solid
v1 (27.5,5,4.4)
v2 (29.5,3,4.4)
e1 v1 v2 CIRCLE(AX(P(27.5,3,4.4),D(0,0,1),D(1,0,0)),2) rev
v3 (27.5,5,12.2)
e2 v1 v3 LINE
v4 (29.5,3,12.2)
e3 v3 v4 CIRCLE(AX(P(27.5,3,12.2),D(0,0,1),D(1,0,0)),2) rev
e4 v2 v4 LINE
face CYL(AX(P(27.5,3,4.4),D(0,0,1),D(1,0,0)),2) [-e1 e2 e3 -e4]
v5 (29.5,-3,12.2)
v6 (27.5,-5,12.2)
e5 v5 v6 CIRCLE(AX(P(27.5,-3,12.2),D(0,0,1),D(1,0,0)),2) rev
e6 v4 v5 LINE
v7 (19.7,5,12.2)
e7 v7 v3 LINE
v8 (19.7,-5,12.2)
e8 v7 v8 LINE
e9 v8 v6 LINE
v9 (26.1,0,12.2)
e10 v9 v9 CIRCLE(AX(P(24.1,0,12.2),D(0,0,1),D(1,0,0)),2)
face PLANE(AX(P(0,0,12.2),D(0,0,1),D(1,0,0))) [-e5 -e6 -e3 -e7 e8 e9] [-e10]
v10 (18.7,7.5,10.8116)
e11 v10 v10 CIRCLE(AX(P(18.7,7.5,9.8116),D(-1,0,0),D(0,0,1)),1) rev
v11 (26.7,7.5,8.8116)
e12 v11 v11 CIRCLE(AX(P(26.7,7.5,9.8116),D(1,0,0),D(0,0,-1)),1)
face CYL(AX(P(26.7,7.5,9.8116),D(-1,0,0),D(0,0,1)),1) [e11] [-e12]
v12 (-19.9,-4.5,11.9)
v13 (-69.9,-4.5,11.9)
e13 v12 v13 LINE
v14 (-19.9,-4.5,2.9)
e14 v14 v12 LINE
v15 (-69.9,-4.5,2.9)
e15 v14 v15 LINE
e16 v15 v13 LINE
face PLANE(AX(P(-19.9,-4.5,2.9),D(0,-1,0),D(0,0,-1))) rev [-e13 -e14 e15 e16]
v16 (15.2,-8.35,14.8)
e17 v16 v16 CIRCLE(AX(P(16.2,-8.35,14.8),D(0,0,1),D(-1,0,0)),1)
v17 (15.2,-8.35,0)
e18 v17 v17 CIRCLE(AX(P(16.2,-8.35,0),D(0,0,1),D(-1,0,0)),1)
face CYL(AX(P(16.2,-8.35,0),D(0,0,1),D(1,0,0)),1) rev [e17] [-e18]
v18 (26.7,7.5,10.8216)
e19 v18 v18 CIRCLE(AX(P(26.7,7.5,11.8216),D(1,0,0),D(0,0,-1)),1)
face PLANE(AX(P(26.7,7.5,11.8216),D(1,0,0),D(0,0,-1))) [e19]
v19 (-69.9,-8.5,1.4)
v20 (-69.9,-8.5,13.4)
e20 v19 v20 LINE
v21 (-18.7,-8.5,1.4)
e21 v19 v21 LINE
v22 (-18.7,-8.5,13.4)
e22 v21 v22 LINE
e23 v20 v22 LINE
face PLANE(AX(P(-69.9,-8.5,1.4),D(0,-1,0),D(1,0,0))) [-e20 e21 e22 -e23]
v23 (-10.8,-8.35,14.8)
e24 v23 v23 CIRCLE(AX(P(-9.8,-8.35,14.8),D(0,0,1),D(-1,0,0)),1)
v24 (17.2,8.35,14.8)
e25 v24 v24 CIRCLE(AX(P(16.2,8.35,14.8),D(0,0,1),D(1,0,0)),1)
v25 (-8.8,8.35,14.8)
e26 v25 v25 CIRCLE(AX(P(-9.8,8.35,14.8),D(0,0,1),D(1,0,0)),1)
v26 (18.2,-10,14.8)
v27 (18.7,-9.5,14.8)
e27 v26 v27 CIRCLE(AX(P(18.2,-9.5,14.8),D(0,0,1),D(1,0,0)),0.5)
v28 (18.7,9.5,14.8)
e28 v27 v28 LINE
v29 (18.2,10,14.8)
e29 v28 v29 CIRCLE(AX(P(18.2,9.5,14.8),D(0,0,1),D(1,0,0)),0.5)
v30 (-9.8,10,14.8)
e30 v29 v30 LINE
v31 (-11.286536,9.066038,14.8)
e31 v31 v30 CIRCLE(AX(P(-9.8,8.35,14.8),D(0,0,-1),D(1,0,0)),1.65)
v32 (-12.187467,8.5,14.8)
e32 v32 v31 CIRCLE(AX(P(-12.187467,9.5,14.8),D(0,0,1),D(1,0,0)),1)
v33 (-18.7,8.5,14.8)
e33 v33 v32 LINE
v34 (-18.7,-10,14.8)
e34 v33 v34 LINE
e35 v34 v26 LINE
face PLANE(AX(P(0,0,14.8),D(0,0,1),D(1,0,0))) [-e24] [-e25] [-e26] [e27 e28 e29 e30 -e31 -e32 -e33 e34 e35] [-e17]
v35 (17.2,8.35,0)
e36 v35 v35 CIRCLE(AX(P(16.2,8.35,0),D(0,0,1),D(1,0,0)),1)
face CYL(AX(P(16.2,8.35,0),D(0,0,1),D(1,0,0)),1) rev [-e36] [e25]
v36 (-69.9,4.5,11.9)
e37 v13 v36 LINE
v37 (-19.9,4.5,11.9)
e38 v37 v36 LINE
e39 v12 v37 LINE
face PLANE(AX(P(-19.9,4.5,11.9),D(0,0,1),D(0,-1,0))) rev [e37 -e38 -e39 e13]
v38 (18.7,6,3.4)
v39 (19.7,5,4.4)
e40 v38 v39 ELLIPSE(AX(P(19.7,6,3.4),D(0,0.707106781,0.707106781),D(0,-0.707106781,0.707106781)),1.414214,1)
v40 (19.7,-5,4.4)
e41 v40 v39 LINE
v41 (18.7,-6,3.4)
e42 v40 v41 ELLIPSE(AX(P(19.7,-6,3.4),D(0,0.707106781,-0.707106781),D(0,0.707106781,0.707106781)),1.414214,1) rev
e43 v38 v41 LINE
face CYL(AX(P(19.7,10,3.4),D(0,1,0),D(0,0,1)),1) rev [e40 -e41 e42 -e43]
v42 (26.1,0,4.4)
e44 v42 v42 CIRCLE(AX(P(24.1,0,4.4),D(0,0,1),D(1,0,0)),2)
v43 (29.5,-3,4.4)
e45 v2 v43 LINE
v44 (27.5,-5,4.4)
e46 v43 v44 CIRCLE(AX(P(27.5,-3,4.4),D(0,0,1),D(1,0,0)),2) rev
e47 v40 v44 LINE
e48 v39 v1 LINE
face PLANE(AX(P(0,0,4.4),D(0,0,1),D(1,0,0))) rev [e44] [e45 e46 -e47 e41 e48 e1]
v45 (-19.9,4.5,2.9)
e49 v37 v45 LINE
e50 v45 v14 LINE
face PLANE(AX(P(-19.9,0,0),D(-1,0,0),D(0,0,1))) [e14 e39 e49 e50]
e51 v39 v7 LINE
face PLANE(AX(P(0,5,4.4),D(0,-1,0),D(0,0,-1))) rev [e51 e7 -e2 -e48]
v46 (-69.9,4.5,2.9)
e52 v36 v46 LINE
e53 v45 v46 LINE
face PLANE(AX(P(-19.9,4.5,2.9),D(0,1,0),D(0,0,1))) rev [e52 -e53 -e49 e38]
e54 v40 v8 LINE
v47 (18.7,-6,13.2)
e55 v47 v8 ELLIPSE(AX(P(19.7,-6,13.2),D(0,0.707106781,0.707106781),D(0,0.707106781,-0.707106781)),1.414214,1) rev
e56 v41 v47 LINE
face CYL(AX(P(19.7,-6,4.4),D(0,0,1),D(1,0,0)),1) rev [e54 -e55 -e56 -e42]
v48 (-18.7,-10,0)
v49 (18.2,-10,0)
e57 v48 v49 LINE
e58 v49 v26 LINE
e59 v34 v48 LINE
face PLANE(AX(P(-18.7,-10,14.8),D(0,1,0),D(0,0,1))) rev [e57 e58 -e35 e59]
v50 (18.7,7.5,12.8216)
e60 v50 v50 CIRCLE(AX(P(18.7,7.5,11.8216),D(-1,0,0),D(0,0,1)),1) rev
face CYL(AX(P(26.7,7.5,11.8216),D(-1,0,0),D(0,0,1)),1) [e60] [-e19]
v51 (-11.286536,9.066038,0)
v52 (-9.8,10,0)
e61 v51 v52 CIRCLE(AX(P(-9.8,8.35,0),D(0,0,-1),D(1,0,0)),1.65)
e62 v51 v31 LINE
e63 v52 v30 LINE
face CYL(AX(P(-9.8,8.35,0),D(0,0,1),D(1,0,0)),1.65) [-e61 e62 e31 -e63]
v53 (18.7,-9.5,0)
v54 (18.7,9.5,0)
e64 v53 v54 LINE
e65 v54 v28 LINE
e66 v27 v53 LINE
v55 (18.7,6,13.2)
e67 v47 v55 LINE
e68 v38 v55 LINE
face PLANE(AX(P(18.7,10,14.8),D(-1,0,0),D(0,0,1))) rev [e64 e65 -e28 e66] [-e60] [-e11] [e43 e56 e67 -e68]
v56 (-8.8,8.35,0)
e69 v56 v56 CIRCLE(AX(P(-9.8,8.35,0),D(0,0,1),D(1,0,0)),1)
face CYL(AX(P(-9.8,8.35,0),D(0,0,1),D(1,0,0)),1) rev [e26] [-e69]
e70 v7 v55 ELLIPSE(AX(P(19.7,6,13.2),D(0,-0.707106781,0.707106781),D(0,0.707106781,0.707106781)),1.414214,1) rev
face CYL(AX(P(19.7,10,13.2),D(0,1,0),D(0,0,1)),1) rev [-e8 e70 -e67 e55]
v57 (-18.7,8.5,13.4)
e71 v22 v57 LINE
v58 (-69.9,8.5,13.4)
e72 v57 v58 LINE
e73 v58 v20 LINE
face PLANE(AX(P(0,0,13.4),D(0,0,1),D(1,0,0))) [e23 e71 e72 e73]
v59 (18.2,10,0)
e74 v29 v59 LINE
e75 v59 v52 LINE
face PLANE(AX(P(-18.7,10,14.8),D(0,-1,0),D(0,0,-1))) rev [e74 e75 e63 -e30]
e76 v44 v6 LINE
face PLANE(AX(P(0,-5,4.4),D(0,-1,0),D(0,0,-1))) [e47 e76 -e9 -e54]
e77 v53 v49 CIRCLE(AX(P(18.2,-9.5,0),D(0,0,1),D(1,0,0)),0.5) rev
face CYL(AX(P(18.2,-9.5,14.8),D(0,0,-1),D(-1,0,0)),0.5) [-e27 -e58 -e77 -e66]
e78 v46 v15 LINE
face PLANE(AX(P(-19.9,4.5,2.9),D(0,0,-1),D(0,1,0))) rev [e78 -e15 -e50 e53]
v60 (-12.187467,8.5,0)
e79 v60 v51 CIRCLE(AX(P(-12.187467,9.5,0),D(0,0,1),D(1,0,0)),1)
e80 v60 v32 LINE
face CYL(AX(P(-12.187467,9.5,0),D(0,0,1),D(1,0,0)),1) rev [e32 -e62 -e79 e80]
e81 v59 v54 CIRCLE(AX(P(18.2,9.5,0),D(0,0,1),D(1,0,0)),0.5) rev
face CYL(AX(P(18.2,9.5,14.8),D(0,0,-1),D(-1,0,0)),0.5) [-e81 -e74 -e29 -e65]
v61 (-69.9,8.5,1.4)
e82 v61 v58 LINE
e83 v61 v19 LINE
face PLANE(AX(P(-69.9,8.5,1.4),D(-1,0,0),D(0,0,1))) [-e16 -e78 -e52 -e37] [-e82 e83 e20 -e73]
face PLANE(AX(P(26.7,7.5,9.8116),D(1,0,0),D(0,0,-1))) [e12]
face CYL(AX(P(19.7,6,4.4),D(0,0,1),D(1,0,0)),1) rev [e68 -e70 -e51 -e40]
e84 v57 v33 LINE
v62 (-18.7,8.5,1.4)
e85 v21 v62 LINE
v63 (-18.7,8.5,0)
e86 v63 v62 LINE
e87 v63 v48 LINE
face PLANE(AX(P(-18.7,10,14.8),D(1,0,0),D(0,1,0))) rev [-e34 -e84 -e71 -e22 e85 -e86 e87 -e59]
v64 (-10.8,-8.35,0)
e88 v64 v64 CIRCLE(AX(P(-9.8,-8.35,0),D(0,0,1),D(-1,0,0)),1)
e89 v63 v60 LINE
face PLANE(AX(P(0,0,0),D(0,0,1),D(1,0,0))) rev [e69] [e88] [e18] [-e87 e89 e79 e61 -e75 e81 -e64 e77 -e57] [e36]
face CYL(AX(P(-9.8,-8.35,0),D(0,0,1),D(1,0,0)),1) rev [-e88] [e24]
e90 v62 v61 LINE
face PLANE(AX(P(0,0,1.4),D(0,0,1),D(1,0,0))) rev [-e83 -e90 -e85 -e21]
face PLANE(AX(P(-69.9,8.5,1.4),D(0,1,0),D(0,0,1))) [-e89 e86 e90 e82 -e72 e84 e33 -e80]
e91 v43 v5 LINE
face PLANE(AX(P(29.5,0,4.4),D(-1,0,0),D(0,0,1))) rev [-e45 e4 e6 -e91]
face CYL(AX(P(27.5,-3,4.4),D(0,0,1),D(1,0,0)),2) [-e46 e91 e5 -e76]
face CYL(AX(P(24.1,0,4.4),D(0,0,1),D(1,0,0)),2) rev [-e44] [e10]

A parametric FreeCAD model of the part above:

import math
import FreeCAD as App
import Part
import Sketcher

V = App.Vector
Q = App.Units.Quantity


def edges_at(feature, points):
    """Names of the edges that pass closest to the given points."""
    edges = feature.Shape.Edges
    near = lambda p: min(range(len(edges)), key=lambda i: edges[i].distToShape(Part.Vertex(*p))[0])
    return sorted({f"Edge{near(p) + 1}" for p in points})


def add_polygon(sketch, points):
    """Adds a closed chain of lines whose ends are joined by coincident constraints."""
    first, n = sketch.GeometryCount, len(points)
    for a, b in zip(points, points[1:] + points[:1]):
        sketch.addGeometry(Part.LineSegment(App.Vector(*a, 0), App.Vector(*b, 0)), False)
    for i in range(n):
        sketch.addConstraint(Sketcher.Constraint("Coincident", first + i, 2, first + (i + 1) % n, 1))

doc = App.newDocument("Part")
body = doc.addObject("PartDesign::Body", "Body")

# Sketch on XY plane
sketch1 = body.newObject("Sketcher::SketchObject", "Sketch")
sketch1.AttachmentSupport = (doc.getObject("XY_Plane"), [""])
sketch1.MapMode = "FlatFace"
add_polygon(sketch1, [(18.7, 10), (-18.7, 10), (-18.7, -10), (18.7, -10)])  # lines 0-3
sketch1.addConstraint([
    Sketcher.Constraint("Horizontal", 0),
    Sketcher.Constraint("Vertical", 1),
    Sketcher.Constraint("Horizontal", 2),
    Sketcher.Constraint("Vertical", 3),
    Sketcher.Constraint("Symmetric", 0, 2, 2, 2, -1, 1),
    Sketcher.Constraint("DistanceY", 1, 2, 1, 1, Q("20 mm")),
    Sketcher.Constraint("DistanceX", 0, 2, 0, 1, Q("37.4 mm")),
])
pad1 = body.newObject("PartDesign::Pad", "Pad")
pad1.Profile = sketch1
pad1.Length = 14.8

# Sketch on XY plane
sketch2 = body.newObject("Sketcher::SketchObject", "Sketch001")
sketch2.AttachmentSupport = (doc.getObject("XY_Plane"), [""])
sketch2.MapMode = "FlatFace"
sketch2.AttachmentOffset = App.Placement(V(0, 0, 12.2), App.Rotation())
sketch2.addGeometry([
    Part.LineSegment(V(29.5, -3, 0), V(29.5, 3, 0)),  # 0
    Part.ArcOfCircle(Part.Circle(V(27.5, 3, 0), V(0, 0, 1), 2), math.radians(0), math.radians(90)),  # 1
    Part.LineSegment(V(27.5, 5, 0), V(19.7, 5, 0)),  # 2
    Part.ArcOfCircle(Part.Circle(V(19.7, 6, 0), V(0, 0, 1), 1), math.radians(180), math.radians(270)),  # 3
    Part.LineSegment(V(18.7, 6, 0), V(18.7, -6, 0)),  # 4
    Part.ArcOfCircle(Part.Circle(V(19.7, -6, 0), V(0, 0, 1), 1), math.radians(90), math.radians(180)),  # 5
    Part.LineSegment(V(19.7, -5, 0), V(27.5, -5, 0)),  # 6
    Part.ArcOfCircle(Part.Circle(V(27.5, -3, 0), V(0, 0, 1), 2), math.radians(-90), math.radians(0)),  # 7
    Part.Circle(V(24.1, 0, 0), V(0, 0, 1), 2),  # 8
], False)
sketch2.addConstraint([
    Sketcher.Constraint("Tangent", 0, 2, 1, 1),
    Sketcher.Constraint("Tangent", 1, 2, 2, 1),
    Sketcher.Constraint("Tangent", 2, 2, 3, 2),
    Sketcher.Constraint("Tangent", 3, 1, 4, 1),
    Sketcher.Constraint("Tangent", 4, 2, 5, 2),
    Sketcher.Constraint("Tangent", 5, 1, 6, 1),
    Sketcher.Constraint("Tangent", 6, 2, 7, 1),
    Sketcher.Constraint("Tangent", 7, 2, 0, 1),
    Sketcher.Constraint("Vertical", 0),
    Sketcher.Constraint("Horizontal", 2),
    Sketcher.Constraint("Vertical", 4),
    Sketcher.Constraint("Horizontal", 6),
    Sketcher.Constraint("Equal", 3, 5),
    Sketcher.Constraint("Equal", 1, 7),
    Sketcher.Constraint("Equal", 7, 8),
    Sketcher.Constraint("PointOnObject", 8, 3, -1),
    Sketcher.Constraint("Diameter", 8, Q("4 mm")),
    Sketcher.Constraint("Radius", 3, Q("1 mm")),
    Sketcher.Constraint("DistanceY", 0, 1, 0, 2, Q("6 mm")),
    Sketcher.Constraint("DistanceX", 2, 2, 2, 1, Q("7.8 mm")),
    Sketcher.Constraint("DistanceY", -1, 1, 1, 3, Q("3 mm")),
    Sketcher.Constraint("DistanceX", -1, 1, 1, 3, Q("27.5 mm")),
    Sketcher.Constraint("DistanceX", -1, 1, 8, 3, Q("24.1 mm")),
])
pad2 = body.newObject("PartDesign::Pad", "Pad001")
pad2.Profile = sketch2
pad2.Length = 7.8
pad2.Reversed = True

# Sketch on XY plane
sketch3 = body.newObject("Sketcher::SketchObject", "Sketch002")
sketch3.AttachmentSupport = (doc.getObject("XY_Plane"), [""])
sketch3.MapMode = "FlatFace"
sketch3.AttachmentOffset = App.Placement(V(0, 0, 13.4), App.Rotation())
add_polygon(sketch3, [(-18.7, 8.5), (-69.9, 8.5), (-69.9, -8.5), (-18.7, -8.5)])  # lines 0-3
sketch3.addConstraint([
    Sketcher.Constraint("Horizontal", 0),
    Sketcher.Constraint("Vertical", 1),
    Sketcher.Constraint("Horizontal", 2),
    Sketcher.Constraint("Vertical", 3),
    Sketcher.Constraint("DistanceY", 1, 2, 1, 1, Q("17 mm")),
    Sketcher.Constraint("DistanceX", 0, 2, 0, 1, Q("51.2 mm")),
    Sketcher.Constraint("DistanceX", 0, 2, -1, 1, Q("69.9 mm")),
    Sketcher.Constraint("DistanceY", -1, 1, 0, 2, Q("8.5 mm")),
])
pad3 = body.newObject("PartDesign::Pad", "Pad002")
pad3.Profile = sketch3
pad3.Length = 12
pad3.Reversed = True

# Sketch on YZ plane
sketch4 = body.newObject("Sketcher::SketchObject", "Sketch003")
sketch4.AttachmentSupport = (doc.getObject("YZ_Plane"), [""])
sketch4.MapMode = "FlatFace"
sketch4.AttachmentOffset = App.Placement(V(0, 0, -69.9), App.Rotation())
add_polygon(sketch4, [(4.5, 11.9), (4.5, 2.9), (-4.5, 2.9), (-4.5, 11.9)])  # lines 0-3
sketch4.addConstraint([
    Sketcher.Constraint("Vertical", 0),
    Sketcher.Constraint("Horizontal", 1),
    Sketcher.Constraint("Vertical", 2),
    Sketcher.Constraint("Horizontal", 3),
    Sketcher.Constraint("Equal", 3, 0),
    Sketcher.Constraint("DistanceX", 1, 2, 1, 1, Q("9 mm")),
    Sketcher.Constraint("DistanceX", -1, 1, 0, 2, Q("4.5 mm")),
    Sketcher.Constraint("DistanceY", -1, 1, 0, 2, Q("2.9 mm")),
])
pocket1 = body.newObject("PartDesign::Pocket", "Pocket")
pocket1.Profile = sketch4
pocket1.Length = 50
pocket1.Reversed = True
doc.recompute()

fillet = body.newObject("PartDesign::Fillet", "Fillet")
fillet.Base = (pocket1, edges_at(pocket1, [(18.7, 0, 4.4)]))
fillet.Radius = 1
doc.recompute()

fillet2 = body.newObject("PartDesign::Fillet", "Fillet001")
fillet2.Base = (fillet, edges_at(fillet, [(18.7, 0, 12.2)]))
fillet2.Radius = 1

# Sketch on XY plane
sketch5 = body.newObject("Sketcher::SketchObject", "Sketch004")
sketch5.AttachmentSupport = (doc.getObject("XY_Plane"), [""])
sketch5.MapMode = "FlatFace"
sketch5.AttachmentOffset = App.Placement(V(0, 0, 14.8), App.Rotation())
sketch5.addGeometry([
    Part.Circle(V(16.2, 8.35, 0), V(0, 0, 1), 1),  # 0
    Part.Circle(V(-9.8, 8.35, 0), V(0, 0, 1), 1),  # 1
    Part.Circle(V(-9.8, -8.35, 0), V(0, 0, 1), 1),  # 2
    Part.Circle(V(16.2, -8.35, 0), V(0, 0, 1), 1),  # 3
    Part.LineSegment(V(-18.7, 8.5, 0), V(-12.187467, 8.5, 0)),  # 4
    Part.ArcOfCircle(Part.Circle(V(-12.187467, 9.5, 0), V(0, 0, 1), 1), math.radians(-90), math.radians(-25.719279)),  # 5
    Part.ArcOfCircle(Part.Circle(V(-9.8, 8.35, 0), V(0, 0, 1), 1.65), math.radians(90), math.radians(154.28072)),  # 6
    Part.LineSegment(V(-9.8, 10, 0), V(-18.7, 10, 0)),  # 7
    Part.LineSegment(V(-18.7, 10, 0), V(-18.7, 8.5, 0)),  # 8
], False)
sketch5.addConstraint([
    Sketcher.Constraint("Tangent", 4, 2, 5, 1),
    Sketcher.Constraint("Tangent", 5, 2, 6, 2),
    Sketcher.Constraint("Tangent", 6, 1, 7, 1),
    Sketcher.Constraint("Coincident", 7, 2, 8, 1),
    Sketcher.Constraint("Coincident", 8, 2, 4, 1),
    Sketcher.Constraint("Horizontal", 4),
    Sketcher.Constraint("Horizontal", 7),
    Sketcher.Constraint("Vertical", 8),
    Sketcher.Constraint("Coincident", 6, 3, 1, 3),
    Sketcher.Constraint("Equal", 0, 1),
    Sketcher.Constraint("Equal", 1, 2),
    Sketcher.Constraint("Equal", 2, 3),
    Sketcher.Constraint("Equal", 3, 5),
    Sketcher.Constraint("Symmetric", 1, 3, 2, 3, -1),
    Sketcher.Constraint("Symmetric", 0, 3, 3, 3, -1),
    Sketcher.Constraint("Horizontal", 0, 3, 1, 3),
    Sketcher.Constraint("Diameter", 0, Q("2 mm")),
    Sketcher.Constraint("Radius", 6, Q("1.65 mm")),
    Sketcher.Constraint("DistanceX", 7, 2, 7, 1, Q("8.9 mm")),
    Sketcher.Constraint("DistanceY", 8, 2, 8, 1, Q("1.5 mm")),
    Sketcher.Constraint("DistanceY", -1, 1, 6, 1, Q("10 mm")),
    Sketcher.Constraint("DistanceX", 1, 3, 0, 3, Q("26 mm")),
    Sketcher.Constraint("DistanceX", -1, 1, 0, 3, Q("16.2 mm")),
])
pocket2 = body.newObject("PartDesign::Pocket", "Pocket001")
pocket2.Profile = sketch5
pocket2.Type = "ThroughAll"
doc.recompute()

fillet3 = body.newObject("PartDesign::Fillet", "Fillet002")
fillet3.Base = (pocket2, edges_at(pocket2, [(18.7, -10, 7.4), (18.7, 10, 7.4)]))
fillet3.Radius = 0.5

# Sketch on YZ plane
sketch6 = body.newObject("Sketcher::SketchObject", "Sketch005")
sketch6.AttachmentSupport = (doc.getObject("YZ_Plane"), [""])
sketch6.MapMode = "FlatFace"
sketch6.AttachmentOffset = App.Placement(V(0, 0, 18.7), App.Rotation())
sketch6.addGeometry([
    Part.Circle(V(7.5, 11.8216, 0), V(0, 0, 1), 1),
    Part.Circle(V(7.5, 9.8116, 0), V(0, 0, 1), 1),
], False)
sketch6.addConstraint([
    Sketcher.Constraint("Equal", 0, 1),
    Sketcher.Constraint("Vertical", 0, 3, 1, 3),
    Sketcher.Constraint("Diameter", 0, Q("2 mm")),
    Sketcher.Constraint("DistanceX", -1, 1, 0, 3, Q("7.5 mm")),
    Sketcher.Constraint("DistanceY", 1, 3, 0, 3, Q("2.01 mm")),
    Sketcher.Constraint("DistanceY", -1, 1, 0, 3, Q("11.8216 mm")),
])
pad4 = body.newObject("PartDesign::Pad", "Pad003")
pad4.Profile = sketch6
pad4.Length = 8

doc.recompute()
